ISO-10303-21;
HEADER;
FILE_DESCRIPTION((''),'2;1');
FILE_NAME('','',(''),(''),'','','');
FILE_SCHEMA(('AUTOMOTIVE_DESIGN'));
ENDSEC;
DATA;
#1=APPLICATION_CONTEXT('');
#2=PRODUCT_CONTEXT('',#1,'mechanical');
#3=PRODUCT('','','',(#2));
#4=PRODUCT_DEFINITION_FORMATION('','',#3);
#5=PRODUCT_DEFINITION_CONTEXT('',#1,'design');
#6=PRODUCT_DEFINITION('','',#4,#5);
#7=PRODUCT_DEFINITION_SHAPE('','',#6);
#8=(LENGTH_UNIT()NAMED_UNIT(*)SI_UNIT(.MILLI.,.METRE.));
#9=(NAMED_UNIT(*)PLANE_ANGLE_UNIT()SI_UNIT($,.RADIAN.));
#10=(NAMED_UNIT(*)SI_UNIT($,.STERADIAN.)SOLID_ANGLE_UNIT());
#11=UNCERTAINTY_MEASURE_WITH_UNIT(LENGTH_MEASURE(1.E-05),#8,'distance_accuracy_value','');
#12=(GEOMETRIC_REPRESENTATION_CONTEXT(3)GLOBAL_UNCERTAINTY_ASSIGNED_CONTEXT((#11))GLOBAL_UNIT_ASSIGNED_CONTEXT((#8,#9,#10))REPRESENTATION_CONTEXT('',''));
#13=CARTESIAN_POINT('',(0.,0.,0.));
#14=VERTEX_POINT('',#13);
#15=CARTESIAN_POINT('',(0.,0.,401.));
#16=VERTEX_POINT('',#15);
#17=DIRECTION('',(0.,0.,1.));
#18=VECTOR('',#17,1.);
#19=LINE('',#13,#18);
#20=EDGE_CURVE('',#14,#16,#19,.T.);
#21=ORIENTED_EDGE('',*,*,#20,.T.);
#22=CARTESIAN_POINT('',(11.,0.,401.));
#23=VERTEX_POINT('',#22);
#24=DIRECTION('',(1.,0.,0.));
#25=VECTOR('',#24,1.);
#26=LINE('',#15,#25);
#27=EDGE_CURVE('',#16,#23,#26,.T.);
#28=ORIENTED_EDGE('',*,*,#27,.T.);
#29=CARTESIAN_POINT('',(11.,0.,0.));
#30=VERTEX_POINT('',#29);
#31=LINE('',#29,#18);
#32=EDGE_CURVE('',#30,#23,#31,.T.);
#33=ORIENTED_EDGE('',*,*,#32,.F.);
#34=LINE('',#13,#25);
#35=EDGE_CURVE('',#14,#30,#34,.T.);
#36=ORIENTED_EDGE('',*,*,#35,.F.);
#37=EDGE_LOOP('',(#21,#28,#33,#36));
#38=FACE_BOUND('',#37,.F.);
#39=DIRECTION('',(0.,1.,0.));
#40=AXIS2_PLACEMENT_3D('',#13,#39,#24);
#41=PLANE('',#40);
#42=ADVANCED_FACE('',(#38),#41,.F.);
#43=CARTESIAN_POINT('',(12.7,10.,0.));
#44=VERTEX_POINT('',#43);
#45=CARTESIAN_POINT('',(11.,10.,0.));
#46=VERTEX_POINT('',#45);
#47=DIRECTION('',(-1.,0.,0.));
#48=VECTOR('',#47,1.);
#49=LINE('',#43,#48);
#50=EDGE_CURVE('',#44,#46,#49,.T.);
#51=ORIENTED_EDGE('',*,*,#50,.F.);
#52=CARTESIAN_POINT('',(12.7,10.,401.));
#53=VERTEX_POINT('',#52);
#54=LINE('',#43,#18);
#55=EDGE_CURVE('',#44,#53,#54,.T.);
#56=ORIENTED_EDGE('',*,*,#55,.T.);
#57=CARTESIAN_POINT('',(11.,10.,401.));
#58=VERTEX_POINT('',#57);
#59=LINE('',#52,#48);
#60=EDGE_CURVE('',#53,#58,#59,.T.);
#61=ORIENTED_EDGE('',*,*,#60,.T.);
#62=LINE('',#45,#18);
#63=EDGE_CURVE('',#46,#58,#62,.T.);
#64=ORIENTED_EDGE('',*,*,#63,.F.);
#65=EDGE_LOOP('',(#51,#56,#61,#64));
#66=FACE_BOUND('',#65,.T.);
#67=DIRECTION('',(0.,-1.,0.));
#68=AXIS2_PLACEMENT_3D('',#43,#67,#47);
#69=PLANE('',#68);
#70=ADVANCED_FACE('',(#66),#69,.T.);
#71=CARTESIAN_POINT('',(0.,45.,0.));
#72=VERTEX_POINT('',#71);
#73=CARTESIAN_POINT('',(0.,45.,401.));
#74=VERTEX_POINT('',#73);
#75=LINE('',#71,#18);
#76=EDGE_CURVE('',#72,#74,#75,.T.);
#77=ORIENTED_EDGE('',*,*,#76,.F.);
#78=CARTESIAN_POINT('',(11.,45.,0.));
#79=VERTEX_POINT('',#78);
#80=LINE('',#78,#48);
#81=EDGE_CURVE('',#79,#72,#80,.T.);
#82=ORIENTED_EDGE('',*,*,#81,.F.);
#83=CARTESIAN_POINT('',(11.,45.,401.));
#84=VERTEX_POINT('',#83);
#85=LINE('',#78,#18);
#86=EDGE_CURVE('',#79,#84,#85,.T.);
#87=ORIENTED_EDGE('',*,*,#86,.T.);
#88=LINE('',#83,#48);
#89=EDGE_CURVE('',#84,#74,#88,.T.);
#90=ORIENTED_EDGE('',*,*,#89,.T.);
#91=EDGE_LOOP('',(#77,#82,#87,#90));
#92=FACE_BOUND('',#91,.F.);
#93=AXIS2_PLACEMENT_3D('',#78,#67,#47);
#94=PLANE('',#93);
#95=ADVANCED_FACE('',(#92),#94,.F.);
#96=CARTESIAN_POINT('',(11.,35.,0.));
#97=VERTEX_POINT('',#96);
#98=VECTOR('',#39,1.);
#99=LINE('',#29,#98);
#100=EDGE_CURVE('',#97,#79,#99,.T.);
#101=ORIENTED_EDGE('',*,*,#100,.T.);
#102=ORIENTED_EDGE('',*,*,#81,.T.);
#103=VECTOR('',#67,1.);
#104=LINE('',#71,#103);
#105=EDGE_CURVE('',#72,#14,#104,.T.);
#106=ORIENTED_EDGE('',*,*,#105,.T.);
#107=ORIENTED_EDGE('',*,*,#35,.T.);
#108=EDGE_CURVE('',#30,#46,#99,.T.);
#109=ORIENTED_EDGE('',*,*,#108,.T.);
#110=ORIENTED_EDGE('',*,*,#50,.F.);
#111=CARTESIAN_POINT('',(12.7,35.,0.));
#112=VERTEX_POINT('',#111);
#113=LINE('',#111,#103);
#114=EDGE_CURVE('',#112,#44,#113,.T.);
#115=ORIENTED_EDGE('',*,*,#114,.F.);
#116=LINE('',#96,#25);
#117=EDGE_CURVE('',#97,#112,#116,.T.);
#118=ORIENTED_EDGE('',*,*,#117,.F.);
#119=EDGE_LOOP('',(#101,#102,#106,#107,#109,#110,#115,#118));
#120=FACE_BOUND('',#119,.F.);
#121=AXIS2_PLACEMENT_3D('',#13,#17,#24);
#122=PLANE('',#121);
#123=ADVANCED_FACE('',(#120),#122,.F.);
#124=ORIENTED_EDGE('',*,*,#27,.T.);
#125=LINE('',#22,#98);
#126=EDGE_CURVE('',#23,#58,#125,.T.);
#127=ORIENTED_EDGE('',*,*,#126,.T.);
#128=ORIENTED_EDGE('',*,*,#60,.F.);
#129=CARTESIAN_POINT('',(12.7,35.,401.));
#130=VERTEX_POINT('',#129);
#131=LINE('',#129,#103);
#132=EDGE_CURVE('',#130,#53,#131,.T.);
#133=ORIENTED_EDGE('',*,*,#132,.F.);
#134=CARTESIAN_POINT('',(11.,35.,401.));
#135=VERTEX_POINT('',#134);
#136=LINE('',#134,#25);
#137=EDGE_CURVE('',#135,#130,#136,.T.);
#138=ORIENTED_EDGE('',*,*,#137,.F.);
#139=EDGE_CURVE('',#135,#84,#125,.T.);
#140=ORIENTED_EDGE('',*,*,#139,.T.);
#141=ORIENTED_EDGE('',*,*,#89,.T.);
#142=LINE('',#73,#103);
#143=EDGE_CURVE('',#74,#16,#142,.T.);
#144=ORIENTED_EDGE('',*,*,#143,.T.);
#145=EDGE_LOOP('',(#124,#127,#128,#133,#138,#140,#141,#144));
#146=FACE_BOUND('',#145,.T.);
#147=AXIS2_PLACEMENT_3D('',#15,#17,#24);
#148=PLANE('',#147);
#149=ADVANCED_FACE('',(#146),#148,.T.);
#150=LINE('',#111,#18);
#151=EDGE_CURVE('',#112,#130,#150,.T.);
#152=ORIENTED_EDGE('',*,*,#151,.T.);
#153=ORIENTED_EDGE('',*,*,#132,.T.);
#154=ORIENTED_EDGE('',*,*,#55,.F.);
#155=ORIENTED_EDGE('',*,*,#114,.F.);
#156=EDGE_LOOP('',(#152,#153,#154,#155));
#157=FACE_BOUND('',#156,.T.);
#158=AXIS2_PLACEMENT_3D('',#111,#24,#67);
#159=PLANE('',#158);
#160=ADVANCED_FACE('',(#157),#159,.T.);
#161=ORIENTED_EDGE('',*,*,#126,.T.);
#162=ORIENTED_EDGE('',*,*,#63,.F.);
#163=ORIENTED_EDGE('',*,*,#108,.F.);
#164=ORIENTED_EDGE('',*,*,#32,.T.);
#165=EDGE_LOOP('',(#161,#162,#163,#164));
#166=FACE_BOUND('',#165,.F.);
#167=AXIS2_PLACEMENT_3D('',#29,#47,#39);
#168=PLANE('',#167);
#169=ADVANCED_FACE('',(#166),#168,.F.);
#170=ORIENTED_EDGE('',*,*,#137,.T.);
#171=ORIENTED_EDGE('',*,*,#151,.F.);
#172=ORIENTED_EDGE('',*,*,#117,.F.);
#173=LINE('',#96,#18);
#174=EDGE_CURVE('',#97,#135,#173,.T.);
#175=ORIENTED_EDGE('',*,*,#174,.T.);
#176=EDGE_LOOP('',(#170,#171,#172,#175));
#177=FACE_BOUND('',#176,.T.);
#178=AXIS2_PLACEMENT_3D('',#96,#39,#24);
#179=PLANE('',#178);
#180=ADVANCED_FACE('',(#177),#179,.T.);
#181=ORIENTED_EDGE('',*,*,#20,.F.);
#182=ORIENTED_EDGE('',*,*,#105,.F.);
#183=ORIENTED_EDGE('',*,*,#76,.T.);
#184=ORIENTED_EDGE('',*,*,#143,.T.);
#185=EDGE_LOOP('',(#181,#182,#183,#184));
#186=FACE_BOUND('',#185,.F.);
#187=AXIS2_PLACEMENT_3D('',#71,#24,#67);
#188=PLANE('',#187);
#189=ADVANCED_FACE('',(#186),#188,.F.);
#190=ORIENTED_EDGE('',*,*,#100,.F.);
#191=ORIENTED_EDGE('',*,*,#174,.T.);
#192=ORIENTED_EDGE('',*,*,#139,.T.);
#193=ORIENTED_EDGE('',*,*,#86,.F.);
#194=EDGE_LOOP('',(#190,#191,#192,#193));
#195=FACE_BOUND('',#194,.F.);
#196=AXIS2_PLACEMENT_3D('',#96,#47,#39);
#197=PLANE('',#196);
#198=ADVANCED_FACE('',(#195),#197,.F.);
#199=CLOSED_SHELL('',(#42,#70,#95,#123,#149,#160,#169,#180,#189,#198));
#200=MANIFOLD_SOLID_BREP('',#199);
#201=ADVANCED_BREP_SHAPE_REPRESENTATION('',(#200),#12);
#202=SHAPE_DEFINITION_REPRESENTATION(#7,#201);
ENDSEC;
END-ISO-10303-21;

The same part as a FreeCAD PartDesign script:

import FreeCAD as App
import Part
import Sketcher
from FreeCAD import Vector

doc = App.newDocument("Part")
params = doc.addObject("Spreadsheet::Sheet", "Params")
for row, (alias, value) in enumerate([
    ("sketch1_width", "11 mm"),
    ("sketch1_height", "45 mm"),
    ("sketch1_height2", "25 mm"),
    ("sketch1_width2", "1.7 mm"),
    ("pad1_length", "401 mm"),
], start=1):
    params.set(f"A{row}", alias)
    params.set(f"B{row}", "=" + value)
    params.setAlias(f"B{row}", alias)

body = doc.addObject("PartDesign::Body", "Body")

# Sketch on XY plane
sketch1 = doc.addObject("Sketcher::SketchObject", "Sketch")
body.addObject(sketch1)
sketch1.AttachmentSupport = (doc.XY_Plane, [""])
sketch1.MapMode = "FlatFace"
sketch1.addGeometry(Part.LineSegment(Vector(0, 45, 0), Vector(0, 0, 0)), False)
sketch1.addGeometry(Part.LineSegment(Vector(0, 0, 0), Vector(11, 0, 0)), False)
sketch1.addGeometry(Part.LineSegment(Vector(11, 0, 0), Vector(11, 10, 0)), False)
sketch1.addGeometry(Part.LineSegment(Vector(11, 10, 0), Vector(12.7, 10, 0)), False)
sketch1.addGeometry(Part.LineSegment(Vector(12.7, 10, 0), Vector(12.7, 35, 0)), False)
sketch1.addGeometry(Part.LineSegment(Vector(12.7, 35, 0), Vector(11, 35, 0)), False)
sketch1.addGeometry(Part.LineSegment(Vector(11, 35, 0), Vector(11, 45, 0)), False)
sketch1.addGeometry(Part.LineSegment(Vector(11, 45, 0), Vector(0, 45, 0)), False)
sketch1.addConstraint(Sketcher.Constraint("Coincident", 0, 2, 1, 1))
sketch1.addConstraint(Sketcher.Constraint("Coincident", 1, 2, 2, 1))
sketch1.addConstraint(Sketcher.Constraint("Coincident", 2, 2, 3, 1))
sketch1.addConstraint(Sketcher.Constraint("Coincident", 3, 2, 4, 1))
sketch1.addConstraint(Sketcher.Constraint("Coincident", 4, 2, 5, 1))
sketch1.addConstraint(Sketcher.Constraint("Coincident", 5, 2, 6, 1))
sketch1.addConstraint(Sketcher.Constraint("Coincident", 6, 2, 7, 1))
sketch1.addConstraint(Sketcher.Constraint("Coincident", 7, 2, 0, 1))
sketch1.addConstraint(Sketcher.Constraint("Vertical", 0))
sketch1.addConstraint(Sketcher.Constraint("Horizontal", 1))
sketch1.addConstraint(Sketcher.Constraint("Vertical", 2))
sketch1.addConstraint(Sketcher.Constraint("Horizontal", 3))
sketch1.addConstraint(Sketcher.Constraint("Vertical", 4))
sketch1.addConstraint(Sketcher.Constraint("Horizontal", 5))
sketch1.addConstraint(Sketcher.Constraint("Vertical", 6))
sketch1.addConstraint(Sketcher.Constraint("Horizontal", 7))
sketch1.addConstraint(Sketcher.Constraint("Coincident", 0, 2, -1, 1))
sketch1.addConstraint(Sketcher.Constraint("Vertical", 2, 2, 5, 2))
sketch1.addConstraint(Sketcher.Constraint("Equal", 2, 6))
sketch1.addConstraint(Sketcher.Constraint("DistanceX", 1, 1, 1, 2, 11.0))
sketch1.addConstraint(Sketcher.Constraint("DistanceY", 0, 2, 0, 1, 45.0))
sketch1.addConstraint(Sketcher.Constraint("DistanceY", 4, 1, 4, 2, 25.0))
sketch1.addConstraint(Sketcher.Constraint("DistanceX", 3, 1, 3, 2, 1.7))
sketch1.setExpression("Constraints[19]", "Params.sketch1_width")
sketch1.setExpression("Constraints[20]", "Params.sketch1_height")
sketch1.setExpression("Constraints[21]", "Params.sketch1_height2")
sketch1.setExpression("Constraints[22]", "Params.sketch1_width2")
pad1 = doc.addObject("PartDesign::Pad", "Pad")
body.addObject(pad1)
pad1.Profile = sketch1
pad1.setExpression("Length", "Params.pad1_length")

doc.recompute()
